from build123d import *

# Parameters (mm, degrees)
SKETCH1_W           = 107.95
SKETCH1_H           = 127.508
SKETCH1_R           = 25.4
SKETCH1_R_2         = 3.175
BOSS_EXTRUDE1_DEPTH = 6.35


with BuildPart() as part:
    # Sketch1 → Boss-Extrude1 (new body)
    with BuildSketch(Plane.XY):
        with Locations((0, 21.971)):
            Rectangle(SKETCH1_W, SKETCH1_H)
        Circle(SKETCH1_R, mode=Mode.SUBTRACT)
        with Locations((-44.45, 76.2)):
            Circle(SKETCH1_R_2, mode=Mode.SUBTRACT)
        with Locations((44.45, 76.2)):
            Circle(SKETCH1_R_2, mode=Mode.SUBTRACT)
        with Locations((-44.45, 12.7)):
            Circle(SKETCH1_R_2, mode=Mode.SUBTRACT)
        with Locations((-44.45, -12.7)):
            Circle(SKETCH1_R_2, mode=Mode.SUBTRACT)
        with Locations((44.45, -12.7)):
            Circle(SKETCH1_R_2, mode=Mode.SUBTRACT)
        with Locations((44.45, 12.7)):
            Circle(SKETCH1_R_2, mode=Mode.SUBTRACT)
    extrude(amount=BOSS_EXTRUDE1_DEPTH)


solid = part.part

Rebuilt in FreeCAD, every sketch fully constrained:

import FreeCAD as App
import Part
import Sketcher
from FreeCAD import Vector
Q = App.Units.Quantity

doc = App.newDocument("Part")
body = doc.addObject("PartDesign::Body", "Body")

# Sketch on XY plane
sketch1 = doc.addObject("Sketcher::SketchObject", "Sketch")
body.addObject(sketch1)
sketch1.AttachmentSupport = (doc.XY_Plane, [""])
sketch1.MapMode = "FlatFace"
sketch1.addGeometry(Part.LineSegment(Vector(-54, 85.7, 0), Vector(-54, -41.8, 0)), False)
sketch1.addGeometry(Part.LineSegment(Vector(-54, -41.8, 0), Vector(54, -41.8, 0)), False)
sketch1.addGeometry(Part.LineSegment(Vector(54, -41.8, 0), Vector(54, 85.7, 0)), False)
sketch1.addGeometry(Part.LineSegment(Vector(54, 85.7, 0), Vector(-54, 85.7, 0)), False)
sketch1.addGeometry(Part.Circle(Vector(-44.5, -12.7, 0), Vector(0, 0, 1), 3.2), False)
sketch1.addGeometry(Part.Circle(Vector(-44.5, 12.7, 0), Vector(0, 0, 1), 3.2), False)
sketch1.addGeometry(Part.Circle(Vector(0, 0, 0), Vector(0, 0, 1), 25.4), False)
sketch1.addGeometry(Part.Circle(Vector(44.5, -12.7, 0), Vector(0, 0, 1), 3.2), False)
sketch1.addGeometry(Part.Circle(Vector(44.5, 12.7, 0), Vector(0, 0, 1), 3.2), False)
sketch1.addGeometry(Part.Circle(Vector(-44.5, 76.2, 0), Vector(0, 0, 1), 3.2), False)
sketch1.addGeometry(Part.Circle(Vector(44.5, 76.2, 0), Vector(0, 0, 1), 3.2), False)
sketch1.addConstraint(Sketcher.Constraint("Coincident", 0, 2, 1, 1))
sketch1.addConstraint(Sketcher.Constraint("Coincident", 1, 2, 2, 1))
sketch1.addConstraint(Sketcher.Constraint("Coincident", 2, 2, 3, 1))
sketch1.addConstraint(Sketcher.Constraint("Coincident", 3, 2, 0, 1))
sketch1.addConstraint(Sketcher.Constraint("Vertical", 0))
sketch1.addConstraint(Sketcher.Constraint("Horizontal", 1))
sketch1.addConstraint(Sketcher.Constraint("Vertical", 2))
sketch1.addConstraint(Sketcher.Constraint("Horizontal", 3))
sketch1.addConstraint(Sketcher.Constraint("Coincident", 6, 3, -1, 1))
sketch1.addConstraint(Sketcher.Constraint("Equal", 4, 5))
sketch1.addConstraint(Sketcher.Constraint("Equal", 5, 7))
sketch1.addConstraint(Sketcher.Constraint("Equal", 7, 8))
sketch1.addConstraint(Sketcher.Constraint("Equal", 8, 9))
sketch1.addConstraint(Sketcher.Constraint("Equal", 9, 10))
sketch1.addConstraint(Sketcher.Constraint("Symmetric", 5, 3, 7, 3, -1, 1))
sketch1.addConstraint(Sketcher.Constraint("Symmetric", 4, 3, 8, 3, -1, 1))
sketch1.addConstraint(Sketcher.Constraint("Symmetric", 4, 3, 7, 3, -2))
sketch1.addConstraint(Sketcher.Constraint("Symmetric", 9, 3, 10, 3, -2))
sketch1.addConstraint(Sketcher.Constraint("Vertical", 5, 3, 9, 3))
sketch1.addConstraint(Sketcher.Constraint("Diameter", 6, Q("2 in")))
sketch1.addConstraint(Sketcher.Constraint("Diameter", 4, Q("0.25 in")))
sketch1.addConstraint(Sketcher.Constraint("DistanceY", -1, 1, 9, 3, Q("3 in")))
sketch1.addConstraint(Sketcher.Constraint("DistanceY", 4, 3, 5, 3, Q("1 in")))
sketch1.addConstraint(Sketcher.Constraint("DistanceX", 1, 1, 1, 2, Q("4.25 in")))
sketch1.addConstraint(Sketcher.Constraint("DistanceY", 0, 2, 0, 1, Q("5.02 in")))
sketch1.addConstraint(Sketcher.Constraint("DistanceX", 4, 3, 7, 3, Q("3.5 in")))
sketch1.addConstraint(Sketcher.Constraint("DistanceX", 0, 2, -1, 1, Q("2.125 in")))
sketch1.addConstraint(Sketcher.Constraint("DistanceY", 0, 2, -1, 1, Q("1.645 in")))
pad1 = doc.addObject("PartDesign::Pad", "Pad")
body.addObject(pad1)
pad1.Profile = sketch1
pad1.Length = Q("0.25 in")

doc.recompute()
